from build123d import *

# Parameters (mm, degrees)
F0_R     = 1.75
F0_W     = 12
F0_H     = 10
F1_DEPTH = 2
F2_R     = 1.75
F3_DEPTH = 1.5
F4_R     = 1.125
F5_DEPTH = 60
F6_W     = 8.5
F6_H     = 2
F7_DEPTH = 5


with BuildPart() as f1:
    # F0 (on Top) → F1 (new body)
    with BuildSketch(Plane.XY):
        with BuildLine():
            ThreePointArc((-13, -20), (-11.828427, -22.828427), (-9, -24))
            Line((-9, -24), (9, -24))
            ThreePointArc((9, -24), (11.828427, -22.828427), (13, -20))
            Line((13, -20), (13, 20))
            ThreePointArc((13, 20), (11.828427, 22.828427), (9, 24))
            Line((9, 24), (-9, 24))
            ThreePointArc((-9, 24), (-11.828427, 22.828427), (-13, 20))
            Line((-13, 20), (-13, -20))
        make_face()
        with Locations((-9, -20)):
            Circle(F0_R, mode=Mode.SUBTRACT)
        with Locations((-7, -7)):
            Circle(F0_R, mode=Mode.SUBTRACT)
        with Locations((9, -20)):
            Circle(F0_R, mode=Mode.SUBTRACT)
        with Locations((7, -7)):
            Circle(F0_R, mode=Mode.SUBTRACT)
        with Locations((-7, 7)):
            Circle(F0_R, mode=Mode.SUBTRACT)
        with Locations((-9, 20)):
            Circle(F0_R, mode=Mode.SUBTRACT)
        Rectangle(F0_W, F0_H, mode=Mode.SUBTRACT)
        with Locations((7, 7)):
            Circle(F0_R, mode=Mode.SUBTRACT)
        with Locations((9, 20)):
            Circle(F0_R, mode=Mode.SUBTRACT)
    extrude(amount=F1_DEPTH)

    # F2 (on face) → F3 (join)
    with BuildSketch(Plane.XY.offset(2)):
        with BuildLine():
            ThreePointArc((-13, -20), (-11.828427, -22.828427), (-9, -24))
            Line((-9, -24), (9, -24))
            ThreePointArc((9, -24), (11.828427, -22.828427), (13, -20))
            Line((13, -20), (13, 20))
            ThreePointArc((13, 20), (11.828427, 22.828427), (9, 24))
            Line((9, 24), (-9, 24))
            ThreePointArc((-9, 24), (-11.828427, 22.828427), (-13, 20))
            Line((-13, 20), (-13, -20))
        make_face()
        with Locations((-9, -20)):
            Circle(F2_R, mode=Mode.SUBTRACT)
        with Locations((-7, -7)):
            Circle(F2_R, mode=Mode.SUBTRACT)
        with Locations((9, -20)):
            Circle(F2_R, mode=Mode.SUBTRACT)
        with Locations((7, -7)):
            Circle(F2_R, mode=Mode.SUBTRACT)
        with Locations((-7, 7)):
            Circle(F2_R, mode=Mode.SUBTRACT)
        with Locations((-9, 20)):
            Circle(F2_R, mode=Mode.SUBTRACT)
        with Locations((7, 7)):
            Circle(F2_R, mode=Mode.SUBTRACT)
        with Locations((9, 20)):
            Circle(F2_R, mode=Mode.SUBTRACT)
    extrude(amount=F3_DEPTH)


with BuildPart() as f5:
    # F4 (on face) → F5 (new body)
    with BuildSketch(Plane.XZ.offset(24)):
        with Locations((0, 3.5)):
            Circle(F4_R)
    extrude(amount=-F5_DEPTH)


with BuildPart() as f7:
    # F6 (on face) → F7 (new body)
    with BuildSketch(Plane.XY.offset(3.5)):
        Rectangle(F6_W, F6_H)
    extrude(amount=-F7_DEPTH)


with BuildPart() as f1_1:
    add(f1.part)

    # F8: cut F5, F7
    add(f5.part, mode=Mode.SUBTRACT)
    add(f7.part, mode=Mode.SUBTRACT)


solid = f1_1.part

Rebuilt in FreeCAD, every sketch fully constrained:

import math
import FreeCAD as App
import Part
import Sketcher
from FreeCAD import Vector
Q = App.Units.Quantity

doc = App.newDocument("Part")
body = doc.addObject("PartDesign::Body", "Body")

# Sketch on XY plane
sketch1 = body.newObject("Sketcher::SketchObject", "Sketch")
sketch1.AttachmentSupport = (doc.getObject("XY_Plane"), [""])
sketch1.MapMode = "FlatFace"
sketch1.addGeometry([
    Part.ArcOfCircle(Part.Circle(Vector(-9, -20, 0), Vector(0, 0, 1), 4), math.radians(-179.999994), math.radians(-90.000006)),  # 0
    Part.LineSegment(Vector(-9, -24, 0), Vector(9, -24, 0)),  # 1
    Part.ArcOfCircle(Part.Circle(Vector(9, -20, 0), Vector(0, 0, 1), 4), math.radians(-89.999994), math.radians(-0.000006)),  # 2
    Part.LineSegment(Vector(13, -20, 0), Vector(13, 20, 0)),  # 3
    Part.ArcOfCircle(Part.Circle(Vector(9, 20, 0), Vector(0, 0, 1), 4), math.radians(0.000006), math.radians(89.999994)),  # 4
    Part.LineSegment(Vector(9, 24, 0), Vector(-9, 24, 0)),  # 5
    Part.ArcOfCircle(Part.Circle(Vector(-9, 20, 0), Vector(0, 0, 1), 4), math.radians(90.000006), math.radians(179.999994)),  # 6
    Part.LineSegment(Vector(-13, 20, 0), Vector(-13, -20, 0)),  # 7
    Part.Circle(Vector(-9, -20, 0), Vector(0, 0, 1), 1.75),  # 8
    Part.Circle(Vector(-7, -7, 0), Vector(0, 0, 1), 1.75),  # 9
    Part.Circle(Vector(9, -20, 0), Vector(0, 0, 1), 1.75),  # 10
    Part.Circle(Vector(7, -7, 0), Vector(0, 0, 1), 1.75),  # 11
    Part.Circle(Vector(-7, 7, 0), Vector(0, 0, 1), 1.75),  # 12
    Part.Circle(Vector(-9, 20, 0), Vector(0, 0, 1), 1.75),  # 13
    Part.LineSegment(Vector(6, -5, 0), Vector(-6, -5, 0)),  # 14
    Part.LineSegment(Vector(-6, -5, 0), Vector(-6, 5, 0)),  # 15
    Part.LineSegment(Vector(-6, 5, 0), Vector(6, 5, 0)),  # 16
    Part.LineSegment(Vector(6, 5, 0), Vector(6, -5, 0)),  # 17
    Part.Circle(Vector(7, 7, 0), Vector(0, 0, 1), 1.75),  # 18
    Part.Circle(Vector(9, 20, 0), Vector(0, 0, 1), 1.75),  # 19
], False)
sketch1.addConstraint([
    Sketcher.Constraint("Tangent", 0, 2, 1, 1),
    Sketcher.Constraint("Tangent", 1, 2, 2, 1),
    Sketcher.Constraint("Tangent", 2, 2, 3, 1),
    Sketcher.Constraint("Tangent", 3, 2, 4, 1),
    Sketcher.Constraint("Tangent", 4, 2, 5, 1),
    Sketcher.Constraint("Tangent", 5, 2, 6, 1),
    Sketcher.Constraint("Tangent", 6, 2, 7, 1),
    Sketcher.Constraint("Tangent", 7, 2, 0, 1),
    Sketcher.Constraint("Coincident", 14, 2, 15, 1),
    Sketcher.Constraint("Coincident", 15, 2, 16, 1),
    Sketcher.Constraint("Coincident", 16, 2, 17, 1),
    Sketcher.Constraint("Coincident", 17, 2, 14, 1),
    Sketcher.Constraint("Horizontal", 1),
    Sketcher.Constraint("Vertical", 3),
    Sketcher.Constraint("Horizontal", 5),
    Sketcher.Constraint("Vertical", 7),
    Sketcher.Constraint("Horizontal", 14),
    Sketcher.Constraint("Vertical", 15),
    Sketcher.Constraint("Horizontal", 16),
    Sketcher.Constraint("Vertical", 17),
    Sketcher.Constraint("Coincident", 8, 3, 0, 3),
    Sketcher.Constraint("Coincident", 10, 3, 2, 3),
    Sketcher.Constraint("Coincident", 13, 3, 6, 3),
    Sketcher.Constraint("Coincident", 19, 3, 4, 3),
    Sketcher.Constraint("Equal", 0, 2),
    Sketcher.Constraint("Equal", 2, 4),
    Sketcher.Constraint("Equal", 4, 6),
    Sketcher.Constraint("Equal", 8, 9),
    Sketcher.Constraint("Equal", 9, 10),
    Sketcher.Constraint("Equal", 10, 11),
    Sketcher.Constraint("Equal", 11, 12),
    Sketcher.Constraint("Equal", 12, 13),
    Sketcher.Constraint("Equal", 13, 18),
    Sketcher.Constraint("Equal", 18, 19),
    Sketcher.Constraint("Symmetric", 0, 3, 4, 3, -1, 1),
    Sketcher.Constraint("Symmetric", 11, 3, 12, 3, -1, 1),
    Sketcher.Constraint("Symmetric", 9, 3, 18, 3, -1, 1),
    Sketcher.Constraint("Symmetric", 14, 2, 16, 2, -1, 1),
    Sketcher.Constraint("Symmetric", 9, 3, 11, 3, -2),
    Sketcher.Constraint("Radius", 0, Q("4 mm")),
    Sketcher.Constraint("Diameter", 8, Q("3.5 mm")),
    Sketcher.Constraint("DistanceX", 1, 1, 1, 2, Q("18 mm")),
    Sketcher.Constraint("DistanceX", 14, 2, 14, 1, Q("12 mm")),
    Sketcher.Constraint("DistanceY", 3, 1, 3, 2, Q("40 mm")),
    Sketcher.Constraint("DistanceY", 15, 1, 15, 2, Q("10 mm")),
    Sketcher.Constraint("DistanceX", 9, 3, -1, 1, Q("7 mm")),
    Sketcher.Constraint("DistanceY", 9, 3, -1, 1, Q("7 mm")),
])
pad1 = body.newObject("PartDesign::Pad", "Pad")
pad1.Profile = sketch1
pad1.Length = 2

# Sketch on XY plane
sketch2 = body.newObject("Sketcher::SketchObject", "Sketch001")
sketch2.AttachmentSupport = (doc.getObject("XY_Plane"), [""])
sketch2.MapMode = "FlatFace"
sketch2.AttachmentOffset = App.Placement(Vector(0, 0, 2), App.Rotation())
sketch2.addGeometry([
    Part.ArcOfCircle(Part.Circle(Vector(-9, -20, 0), Vector(0, 0, 1), 4), math.radians(-179.999994), math.radians(-90.000006)),  # 0
    Part.LineSegment(Vector(-9, -24, 0), Vector(9, -24, 0)),  # 1
    Part.ArcOfCircle(Part.Circle(Vector(9, -20, 0), Vector(0, 0, 1), 4), math.radians(-89.999994), math.radians(-0.000006)),  # 2
    Part.LineSegment(Vector(13, -20, 0), Vector(13, 20, 0)),  # 3
    Part.ArcOfCircle(Part.Circle(Vector(9, 20, 0), Vector(0, 0, 1), 4), math.radians(0.000006), math.radians(89.999994)),  # 4
    Part.LineSegment(Vector(9, 24, 0), Vector(-9, 24, 0)),  # 5
    Part.ArcOfCircle(Part.Circle(Vector(-9, 20, 0), Vector(0, 0, 1), 4), math.radians(90.000006), math.radians(179.999994)),  # 6
    Part.LineSegment(Vector(-13, 20, 0), Vector(-13, -20, 0)),  # 7
    Part.Circle(Vector(-9, -20, 0), Vector(0, 0, 1), 1.75),  # 8
    Part.Circle(Vector(-7, -7, 0), Vector(0, 0, 1), 1.75),  # 9
    Part.Circle(Vector(9, -20, 0), Vector(0, 0, 1), 1.75),  # 10
    Part.Circle(Vector(7, -7, 0), Vector(0, 0, 1), 1.75),  # 11
    Part.Circle(Vector(-7, 7, 0), Vector(0, 0, 1), 1.75),  # 12
    Part.Circle(Vector(-9, 20, 0), Vector(0, 0, 1), 1.75),  # 13
    Part.Circle(Vector(7, 7, 0), Vector(0, 0, 1), 1.75),  # 14
    Part.Circle(Vector(9, 20, 0), Vector(0, 0, 1), 1.75),  # 15
], False)
sketch2.addConstraint([
    Sketcher.Constraint("Tangent", 0, 2, 1, 1),
    Sketcher.Constraint("Tangent", 1, 2, 2, 1),
    Sketcher.Constraint("Tangent", 2, 2, 3, 1),
    Sketcher.Constraint("Tangent", 3, 2, 4, 1),
    Sketcher.Constraint("Tangent", 4, 2, 5, 1),
    Sketcher.Constraint("Tangent", 5, 2, 6, 1),
    Sketcher.Constraint("Tangent", 6, 2, 7, 1),
    Sketcher.Constraint("Tangent", 7, 2, 0, 1),
    Sketcher.Constraint("Horizontal", 1),
    Sketcher.Constraint("Vertical", 3),
    Sketcher.Constraint("Horizontal", 5),
    Sketcher.Constraint("Vertical", 7),
    Sketcher.Constraint("Coincident", 8, 3, 0, 3),
    Sketcher.Constraint("Coincident", 10, 3, 2, 3),
    Sketcher.Constraint("Coincident", 13, 3, 6, 3),
    Sketcher.Constraint("Coincident", 15, 3, 4, 3),
    Sketcher.Constraint("Equal", 0, 2),
    Sketcher.Constraint("Equal", 2, 4),
    Sketcher.Constraint("Equal", 4, 6),
    Sketcher.Constraint("Equal", 8, 9),
    Sketcher.Constraint("Equal", 9, 10),
    Sketcher.Constraint("Equal", 10, 11),
    Sketcher.Constraint("Equal", 11, 12),
    Sketcher.Constraint("Equal", 12, 13),
    Sketcher.Constraint("Equal", 13, 14),
    Sketcher.Constraint("Equal", 14, 15),
    Sketcher.Constraint("Symmetric", 0, 3, 4, 3, -1, 1),
    Sketcher.Constraint("Symmetric", 11, 3, 12, 3, -1, 1),
    Sketcher.Constraint("Symmetric", 9, 3, 14, 3, -1, 1),
    Sketcher.Constraint("Symmetric", 9, 3, 11, 3, -2),
    Sketcher.Constraint("Radius", 0, Q("4 mm")),
    Sketcher.Constraint("Diameter", 8, Q("3.5 mm")),
    Sketcher.Constraint("DistanceX", 1, 1, 1, 2, Q("18 mm")),
    Sketcher.Constraint("DistanceY", 3, 1, 3, 2, Q("40 mm")),
    Sketcher.Constraint("DistanceX", 9, 3, -1, 1, Q("7 mm")),
    Sketcher.Constraint("DistanceY", 9, 3, -1, 1, Q("7 mm")),
])
pad2 = body.newObject("PartDesign::Pad", "Pad001")
pad2.Profile = sketch2
pad2.Length = 1.5
body2 = doc.addObject("PartDesign::Body", "Body001")

# Sketch on XZ plane
sketch3 = body2.newObject("Sketcher::SketchObject", "Sketch002")
sketch3.AttachmentSupport = (doc.getObject("XZ_Plane001"), [""])
sketch3.MapMode = "FlatFace"
sketch3.AttachmentOffset = App.Placement(Vector(0, 0, 24), App.Rotation())
sketch3.addGeometry(Part.Circle(Vector(0, 3.5, 0), Vector(0, 0, 1), 1.125), False)
sketch3.addConstraint([
    Sketcher.Constraint("PointOnObject", 0, 3, -2),
    Sketcher.Constraint("Diameter", 0, Q("2.25 mm")),
    Sketcher.Constraint("DistanceY", -1, 1, 0, 3, Q("3.5 mm")),
])
pad3 = body2.newObject("PartDesign::Pad", "Pad002")
pad3.Profile = sketch3
pad3.Length = 60
pad3.Reversed = True
body3 = doc.addObject("PartDesign::Body", "Body002")

# Sketch on XY plane
sketch4 = body3.newObject("Sketcher::SketchObject", "Sketch003")
sketch4.AttachmentSupport = (doc.getObject("XY_Plane002"), [""])
sketch4.MapMode = "FlatFace"
sketch4.AttachmentOffset = App.Placement(Vector(0, 0, 3.5), App.Rotation())
sketch4.addGeometry([
    Part.LineSegment(Vector(-4.25, 1, 0), Vector(-4.25, -1, 0)),
    Part.LineSegment(Vector(-4.25, -1, 0), Vector(4.25, -1, 0)),
    Part.LineSegment(Vector(4.25, -1, 0), Vector(4.25, 1, 0)),
    Part.LineSegment(Vector(4.25, 1, 0), Vector(-4.25, 1, 0)),
], False)
sketch4.addConstraint([
    Sketcher.Constraint("Coincident", 0, 2, 1, 1),
    Sketcher.Constraint("Coincident", 1, 2, 2, 1),
    Sketcher.Constraint("Coincident", 2, 2, 3, 1),
    Sketcher.Constraint("Coincident", 3, 2, 0, 1),
    Sketcher.Constraint("Vertical", 0),
    Sketcher.Constraint("Horizontal", 1),
    Sketcher.Constraint("Vertical", 2),
    Sketcher.Constraint("Horizontal", 3),
    Sketcher.Constraint("Symmetric", 0, 2, 2, 2, -1, 1),
    Sketcher.Constraint("DistanceY", 0, 2, 0, 1, Q("2 mm")),
    Sketcher.Constraint("DistanceX", 1, 1, 1, 2, Q("8.5 mm")),
])
pad4 = body3.newObject("PartDesign::Pad", "Pad003")
pad4.Profile = sketch4
pad4.Length = 5
pad4.Reversed = True
doc.recompute()

boolean = body.newObject("PartDesign::Boolean", "Boolean")
boolean.Type = "Cut"
boolean.addObjects([body2])
doc.recompute()

boolean2 = body.newObject("PartDesign::Boolean", "Boolean001")
boolean2.Type = "Cut"
boolean2.addObjects([body3])

doc.recompute()
